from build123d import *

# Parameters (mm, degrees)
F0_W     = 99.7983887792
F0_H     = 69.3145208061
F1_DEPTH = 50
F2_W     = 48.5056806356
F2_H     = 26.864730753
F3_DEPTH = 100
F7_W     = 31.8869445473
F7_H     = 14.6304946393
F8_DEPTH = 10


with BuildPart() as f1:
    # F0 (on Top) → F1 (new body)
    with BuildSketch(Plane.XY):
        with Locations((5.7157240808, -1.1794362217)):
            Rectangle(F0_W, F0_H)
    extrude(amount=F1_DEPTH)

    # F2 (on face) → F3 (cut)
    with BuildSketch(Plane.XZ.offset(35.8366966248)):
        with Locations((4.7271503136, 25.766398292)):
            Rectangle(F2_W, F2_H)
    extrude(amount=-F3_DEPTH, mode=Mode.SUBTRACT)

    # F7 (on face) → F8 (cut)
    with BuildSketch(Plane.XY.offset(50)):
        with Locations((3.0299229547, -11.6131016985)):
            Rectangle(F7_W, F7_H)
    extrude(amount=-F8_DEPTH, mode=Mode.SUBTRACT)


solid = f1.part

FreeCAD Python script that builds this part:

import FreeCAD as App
import Part
import Sketcher
from FreeCAD import Vector
Q = App.Units.Quantity


def add_polygon(sketch, points):
    """Adds a closed chain of lines whose ends are joined by coincident constraints."""
    first, n = sketch.GeometryCount, len(points)
    for a, b in zip(points, points[1:] + points[:1]):
        sketch.addGeometry(Part.LineSegment(App.Vector(*a, 0), App.Vector(*b, 0)), False)
    for i in range(n):
        sketch.addConstraint(Sketcher.Constraint("Coincident", first + i, 2, first + (i + 1) % n, 1))

doc = App.newDocument("Part")
body = doc.addObject("PartDesign::Body", "Body")

# Sketch on XY plane
sketch1 = body.newObject("Sketcher::SketchObject", "Sketch")
sketch1.AttachmentSupport = (doc.getObject("XY_Plane"), [""])
sketch1.MapMode = "FlatFace"
add_polygon(sketch1, [(-44, 33), (-44, -36), (56, -36), (56, 33)])  # lines 0-3
sketch1.addConstraint(Sketcher.Constraint("Vertical", 0))
sketch1.addConstraint(Sketcher.Constraint("Horizontal", 1))
sketch1.addConstraint(Sketcher.Constraint("Vertical", 2))
sketch1.addConstraint(Sketcher.Constraint("Horizontal", 3))
sketch1.addConstraint(Sketcher.Constraint("DistanceX", 1, 1, 1, 2, Q("99.798389 mm")))
sketch1.addConstraint(Sketcher.Constraint("DistanceY", 0, 2, 0, 1, Q("69.314521 mm")))
sketch1.addConstraint(Sketcher.Constraint("DistanceX", 0, 2, -1, 1, Q("44.18347 mm")))
sketch1.addConstraint(Sketcher.Constraint("DistanceY", 0, 2, -1, 1, Q("35.836697 mm")))
pad1 = body.newObject("PartDesign::Pad", "Pad")
pad1.Profile = sketch1
pad1.Length = 50

# Sketch on XZ plane
sketch2 = body.newObject("Sketcher::SketchObject", "Sketch001")
sketch2.AttachmentSupport = (doc.getObject("XZ_Plane"), [""])
sketch2.MapMode = "FlatFace"
sketch2.AttachmentOffset = App.Placement(Vector(0, 0, 35.836697), App.Rotation())
add_polygon(sketch2, [(-20, 39), (-20, 12), (29, 12), (29, 39)])  # lines 0-3
sketch2.addConstraint(Sketcher.Constraint("Vertical", 0))
sketch2.addConstraint(Sketcher.Constraint("Horizontal", 1))
sketch2.addConstraint(Sketcher.Constraint("Vertical", 2))
sketch2.addConstraint(Sketcher.Constraint("Horizontal", 3))
sketch2.addConstraint(Sketcher.Constraint("DistanceX", 1, 1, 1, 2, Q("48.505681 mm")))
sketch2.addConstraint(Sketcher.Constraint("DistanceY", 0, 2, 0, 1, Q("26.864731 mm")))
sketch2.addConstraint(Sketcher.Constraint("DistanceX", 0, 2, -1, 1, Q("19.52569 mm")))
sketch2.addConstraint(Sketcher.Constraint("DistanceY", -1, 1, 0, 2, Q("12.334033 mm")))
pocket1 = body.newObject("PartDesign::Pocket", "Pocket")
pocket1.Profile = sketch2
pocket1.Length = 100

# Sketch on XY plane
sketch3 = body.newObject("Sketcher::SketchObject", "Sketch002")
sketch3.AttachmentSupport = (doc.getObject("XY_Plane"), [""])
sketch3.MapMode = "FlatFace"
sketch3.AttachmentOffset = App.Placement(Vector(0, 0, 50), App.Rotation())
add_polygon(sketch3, [(-13, -4), (-13, -19), (19, -19), (19, -4)])  # lines 0-3
sketch3.addConstraint(Sketcher.Constraint("Vertical", 0))
sketch3.addConstraint(Sketcher.Constraint("Horizontal", 1))
sketch3.addConstraint(Sketcher.Constraint("Vertical", 2))
sketch3.addConstraint(Sketcher.Constraint("Horizontal", 3))
sketch3.addConstraint(Sketcher.Constraint("DistanceX", 1, 1, 1, 2, Q("31.886945 mm")))
sketch3.addConstraint(Sketcher.Constraint("DistanceY", 0, 2, 0, 1, Q("14.630495 mm")))
sketch3.addConstraint(Sketcher.Constraint("DistanceX", 0, 2, -1, 1, Q("12.913549 mm")))
sketch3.addConstraint(Sketcher.Constraint("DistanceY", 0, 2, -1, 1, Q("18.928349 mm")))
pocket2 = body.newObject("PartDesign::Pocket", "Pocket001")
pocket2.Profile = sketch3
pocket2.Length = 10

doc.recompute()
